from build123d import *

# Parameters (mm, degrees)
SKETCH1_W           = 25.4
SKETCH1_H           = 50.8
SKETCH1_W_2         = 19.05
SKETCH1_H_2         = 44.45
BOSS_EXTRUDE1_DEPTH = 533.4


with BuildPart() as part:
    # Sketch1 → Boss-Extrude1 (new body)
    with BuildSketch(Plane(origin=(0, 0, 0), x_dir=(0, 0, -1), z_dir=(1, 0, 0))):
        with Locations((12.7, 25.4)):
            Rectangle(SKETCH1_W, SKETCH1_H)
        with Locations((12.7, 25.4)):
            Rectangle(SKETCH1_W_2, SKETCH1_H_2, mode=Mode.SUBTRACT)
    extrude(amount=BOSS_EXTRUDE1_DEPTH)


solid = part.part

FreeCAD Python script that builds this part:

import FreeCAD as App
import Part
import Sketcher
Q = App.Units.Quantity

doc = App.newDocument("Part")
body = doc.addObject("PartDesign::Body", "Body")

sketch1 = doc.addObject("Sketcher::SketchObject", "Sketch")
body.addObject(sketch1)
sketch1.AttachmentSupport = (doc.YZ_Plane, [""])
sketch1.MapMode = "FlatFace"
sketch1.addGeometry([
    Part.LineSegment(App.Vector(50.8, 0, 0), App.Vector(0, 0, 0)),
    Part.LineSegment(App.Vector(0, 0, 0), App.Vector(0, -25.4, 0)),
    Part.LineSegment(App.Vector(0, -25.4, 0), App.Vector(50.8, -25.4, 0)),
    Part.LineSegment(App.Vector(50.8, -25.4, 0), App.Vector(50.8, 0, 0)),
    Part.LineSegment(App.Vector(3.175, -22.225, 0), App.Vector(3.175, -3.175, 0)),
    Part.LineSegment(App.Vector(3.175, -3.175, 0), App.Vector(47.625, -3.175, 0)),
    Part.LineSegment(App.Vector(47.625, -3.175, 0), App.Vector(47.625, -22.225, 0)),
    Part.LineSegment(App.Vector(47.625, -22.225, 0), App.Vector(3.175, -22.225, 0)),
], False)
sketch1.addConstraint([
    Sketcher.Constraint("Coincident", 0, 2, 1, 1),
    Sketcher.Constraint("Coincident", 1, 2, 2, 1),
    Sketcher.Constraint("Coincident", 2, 2, 3, 1),
    Sketcher.Constraint("Coincident", 3, 2, 0, 1),
    Sketcher.Constraint("Coincident", 4, 2, 5, 1),
    Sketcher.Constraint("Coincident", 5, 2, 6, 1),
    Sketcher.Constraint("Coincident", 6, 2, 7, 1),
    Sketcher.Constraint("Coincident", 7, 2, 4, 1),
    Sketcher.Constraint("Horizontal", 0),
    Sketcher.Constraint("Vertical", 1),
    Sketcher.Constraint("Horizontal", 2),
    Sketcher.Constraint("Vertical", 3),
    Sketcher.Constraint("Vertical", 4),
    Sketcher.Constraint("Horizontal", 5),
    Sketcher.Constraint("Vertical", 6),
    Sketcher.Constraint("Horizontal", 7),
    Sketcher.Constraint("Coincident", 0, 2, -1, 1),
    Sketcher.Constraint("DistanceX", 0, 2, 0, 1, Q("2 in")),
    Sketcher.Constraint("DistanceY", 1, 2, 1, 1, Q("1 in")),
    Sketcher.Constraint("DistanceX", 5, 1, 5, 2, Q("1.75 in")),
    Sketcher.Constraint("DistanceY", 4, 1, 4, 2, Q("0.75 in")),
    Sketcher.Constraint("DistanceX", -1, 1, 4, 2, Q("0.125 in")),
    Sketcher.Constraint("DistanceY", 4, 2, -1, 1, Q("0.125 in")),
])
pad1 = doc.addObject("PartDesign::Pad", "Pad")
body.addObject(pad1)
pad1.Profile = sketch1
pad1.Length = Q("21 in")

doc.recompute()
